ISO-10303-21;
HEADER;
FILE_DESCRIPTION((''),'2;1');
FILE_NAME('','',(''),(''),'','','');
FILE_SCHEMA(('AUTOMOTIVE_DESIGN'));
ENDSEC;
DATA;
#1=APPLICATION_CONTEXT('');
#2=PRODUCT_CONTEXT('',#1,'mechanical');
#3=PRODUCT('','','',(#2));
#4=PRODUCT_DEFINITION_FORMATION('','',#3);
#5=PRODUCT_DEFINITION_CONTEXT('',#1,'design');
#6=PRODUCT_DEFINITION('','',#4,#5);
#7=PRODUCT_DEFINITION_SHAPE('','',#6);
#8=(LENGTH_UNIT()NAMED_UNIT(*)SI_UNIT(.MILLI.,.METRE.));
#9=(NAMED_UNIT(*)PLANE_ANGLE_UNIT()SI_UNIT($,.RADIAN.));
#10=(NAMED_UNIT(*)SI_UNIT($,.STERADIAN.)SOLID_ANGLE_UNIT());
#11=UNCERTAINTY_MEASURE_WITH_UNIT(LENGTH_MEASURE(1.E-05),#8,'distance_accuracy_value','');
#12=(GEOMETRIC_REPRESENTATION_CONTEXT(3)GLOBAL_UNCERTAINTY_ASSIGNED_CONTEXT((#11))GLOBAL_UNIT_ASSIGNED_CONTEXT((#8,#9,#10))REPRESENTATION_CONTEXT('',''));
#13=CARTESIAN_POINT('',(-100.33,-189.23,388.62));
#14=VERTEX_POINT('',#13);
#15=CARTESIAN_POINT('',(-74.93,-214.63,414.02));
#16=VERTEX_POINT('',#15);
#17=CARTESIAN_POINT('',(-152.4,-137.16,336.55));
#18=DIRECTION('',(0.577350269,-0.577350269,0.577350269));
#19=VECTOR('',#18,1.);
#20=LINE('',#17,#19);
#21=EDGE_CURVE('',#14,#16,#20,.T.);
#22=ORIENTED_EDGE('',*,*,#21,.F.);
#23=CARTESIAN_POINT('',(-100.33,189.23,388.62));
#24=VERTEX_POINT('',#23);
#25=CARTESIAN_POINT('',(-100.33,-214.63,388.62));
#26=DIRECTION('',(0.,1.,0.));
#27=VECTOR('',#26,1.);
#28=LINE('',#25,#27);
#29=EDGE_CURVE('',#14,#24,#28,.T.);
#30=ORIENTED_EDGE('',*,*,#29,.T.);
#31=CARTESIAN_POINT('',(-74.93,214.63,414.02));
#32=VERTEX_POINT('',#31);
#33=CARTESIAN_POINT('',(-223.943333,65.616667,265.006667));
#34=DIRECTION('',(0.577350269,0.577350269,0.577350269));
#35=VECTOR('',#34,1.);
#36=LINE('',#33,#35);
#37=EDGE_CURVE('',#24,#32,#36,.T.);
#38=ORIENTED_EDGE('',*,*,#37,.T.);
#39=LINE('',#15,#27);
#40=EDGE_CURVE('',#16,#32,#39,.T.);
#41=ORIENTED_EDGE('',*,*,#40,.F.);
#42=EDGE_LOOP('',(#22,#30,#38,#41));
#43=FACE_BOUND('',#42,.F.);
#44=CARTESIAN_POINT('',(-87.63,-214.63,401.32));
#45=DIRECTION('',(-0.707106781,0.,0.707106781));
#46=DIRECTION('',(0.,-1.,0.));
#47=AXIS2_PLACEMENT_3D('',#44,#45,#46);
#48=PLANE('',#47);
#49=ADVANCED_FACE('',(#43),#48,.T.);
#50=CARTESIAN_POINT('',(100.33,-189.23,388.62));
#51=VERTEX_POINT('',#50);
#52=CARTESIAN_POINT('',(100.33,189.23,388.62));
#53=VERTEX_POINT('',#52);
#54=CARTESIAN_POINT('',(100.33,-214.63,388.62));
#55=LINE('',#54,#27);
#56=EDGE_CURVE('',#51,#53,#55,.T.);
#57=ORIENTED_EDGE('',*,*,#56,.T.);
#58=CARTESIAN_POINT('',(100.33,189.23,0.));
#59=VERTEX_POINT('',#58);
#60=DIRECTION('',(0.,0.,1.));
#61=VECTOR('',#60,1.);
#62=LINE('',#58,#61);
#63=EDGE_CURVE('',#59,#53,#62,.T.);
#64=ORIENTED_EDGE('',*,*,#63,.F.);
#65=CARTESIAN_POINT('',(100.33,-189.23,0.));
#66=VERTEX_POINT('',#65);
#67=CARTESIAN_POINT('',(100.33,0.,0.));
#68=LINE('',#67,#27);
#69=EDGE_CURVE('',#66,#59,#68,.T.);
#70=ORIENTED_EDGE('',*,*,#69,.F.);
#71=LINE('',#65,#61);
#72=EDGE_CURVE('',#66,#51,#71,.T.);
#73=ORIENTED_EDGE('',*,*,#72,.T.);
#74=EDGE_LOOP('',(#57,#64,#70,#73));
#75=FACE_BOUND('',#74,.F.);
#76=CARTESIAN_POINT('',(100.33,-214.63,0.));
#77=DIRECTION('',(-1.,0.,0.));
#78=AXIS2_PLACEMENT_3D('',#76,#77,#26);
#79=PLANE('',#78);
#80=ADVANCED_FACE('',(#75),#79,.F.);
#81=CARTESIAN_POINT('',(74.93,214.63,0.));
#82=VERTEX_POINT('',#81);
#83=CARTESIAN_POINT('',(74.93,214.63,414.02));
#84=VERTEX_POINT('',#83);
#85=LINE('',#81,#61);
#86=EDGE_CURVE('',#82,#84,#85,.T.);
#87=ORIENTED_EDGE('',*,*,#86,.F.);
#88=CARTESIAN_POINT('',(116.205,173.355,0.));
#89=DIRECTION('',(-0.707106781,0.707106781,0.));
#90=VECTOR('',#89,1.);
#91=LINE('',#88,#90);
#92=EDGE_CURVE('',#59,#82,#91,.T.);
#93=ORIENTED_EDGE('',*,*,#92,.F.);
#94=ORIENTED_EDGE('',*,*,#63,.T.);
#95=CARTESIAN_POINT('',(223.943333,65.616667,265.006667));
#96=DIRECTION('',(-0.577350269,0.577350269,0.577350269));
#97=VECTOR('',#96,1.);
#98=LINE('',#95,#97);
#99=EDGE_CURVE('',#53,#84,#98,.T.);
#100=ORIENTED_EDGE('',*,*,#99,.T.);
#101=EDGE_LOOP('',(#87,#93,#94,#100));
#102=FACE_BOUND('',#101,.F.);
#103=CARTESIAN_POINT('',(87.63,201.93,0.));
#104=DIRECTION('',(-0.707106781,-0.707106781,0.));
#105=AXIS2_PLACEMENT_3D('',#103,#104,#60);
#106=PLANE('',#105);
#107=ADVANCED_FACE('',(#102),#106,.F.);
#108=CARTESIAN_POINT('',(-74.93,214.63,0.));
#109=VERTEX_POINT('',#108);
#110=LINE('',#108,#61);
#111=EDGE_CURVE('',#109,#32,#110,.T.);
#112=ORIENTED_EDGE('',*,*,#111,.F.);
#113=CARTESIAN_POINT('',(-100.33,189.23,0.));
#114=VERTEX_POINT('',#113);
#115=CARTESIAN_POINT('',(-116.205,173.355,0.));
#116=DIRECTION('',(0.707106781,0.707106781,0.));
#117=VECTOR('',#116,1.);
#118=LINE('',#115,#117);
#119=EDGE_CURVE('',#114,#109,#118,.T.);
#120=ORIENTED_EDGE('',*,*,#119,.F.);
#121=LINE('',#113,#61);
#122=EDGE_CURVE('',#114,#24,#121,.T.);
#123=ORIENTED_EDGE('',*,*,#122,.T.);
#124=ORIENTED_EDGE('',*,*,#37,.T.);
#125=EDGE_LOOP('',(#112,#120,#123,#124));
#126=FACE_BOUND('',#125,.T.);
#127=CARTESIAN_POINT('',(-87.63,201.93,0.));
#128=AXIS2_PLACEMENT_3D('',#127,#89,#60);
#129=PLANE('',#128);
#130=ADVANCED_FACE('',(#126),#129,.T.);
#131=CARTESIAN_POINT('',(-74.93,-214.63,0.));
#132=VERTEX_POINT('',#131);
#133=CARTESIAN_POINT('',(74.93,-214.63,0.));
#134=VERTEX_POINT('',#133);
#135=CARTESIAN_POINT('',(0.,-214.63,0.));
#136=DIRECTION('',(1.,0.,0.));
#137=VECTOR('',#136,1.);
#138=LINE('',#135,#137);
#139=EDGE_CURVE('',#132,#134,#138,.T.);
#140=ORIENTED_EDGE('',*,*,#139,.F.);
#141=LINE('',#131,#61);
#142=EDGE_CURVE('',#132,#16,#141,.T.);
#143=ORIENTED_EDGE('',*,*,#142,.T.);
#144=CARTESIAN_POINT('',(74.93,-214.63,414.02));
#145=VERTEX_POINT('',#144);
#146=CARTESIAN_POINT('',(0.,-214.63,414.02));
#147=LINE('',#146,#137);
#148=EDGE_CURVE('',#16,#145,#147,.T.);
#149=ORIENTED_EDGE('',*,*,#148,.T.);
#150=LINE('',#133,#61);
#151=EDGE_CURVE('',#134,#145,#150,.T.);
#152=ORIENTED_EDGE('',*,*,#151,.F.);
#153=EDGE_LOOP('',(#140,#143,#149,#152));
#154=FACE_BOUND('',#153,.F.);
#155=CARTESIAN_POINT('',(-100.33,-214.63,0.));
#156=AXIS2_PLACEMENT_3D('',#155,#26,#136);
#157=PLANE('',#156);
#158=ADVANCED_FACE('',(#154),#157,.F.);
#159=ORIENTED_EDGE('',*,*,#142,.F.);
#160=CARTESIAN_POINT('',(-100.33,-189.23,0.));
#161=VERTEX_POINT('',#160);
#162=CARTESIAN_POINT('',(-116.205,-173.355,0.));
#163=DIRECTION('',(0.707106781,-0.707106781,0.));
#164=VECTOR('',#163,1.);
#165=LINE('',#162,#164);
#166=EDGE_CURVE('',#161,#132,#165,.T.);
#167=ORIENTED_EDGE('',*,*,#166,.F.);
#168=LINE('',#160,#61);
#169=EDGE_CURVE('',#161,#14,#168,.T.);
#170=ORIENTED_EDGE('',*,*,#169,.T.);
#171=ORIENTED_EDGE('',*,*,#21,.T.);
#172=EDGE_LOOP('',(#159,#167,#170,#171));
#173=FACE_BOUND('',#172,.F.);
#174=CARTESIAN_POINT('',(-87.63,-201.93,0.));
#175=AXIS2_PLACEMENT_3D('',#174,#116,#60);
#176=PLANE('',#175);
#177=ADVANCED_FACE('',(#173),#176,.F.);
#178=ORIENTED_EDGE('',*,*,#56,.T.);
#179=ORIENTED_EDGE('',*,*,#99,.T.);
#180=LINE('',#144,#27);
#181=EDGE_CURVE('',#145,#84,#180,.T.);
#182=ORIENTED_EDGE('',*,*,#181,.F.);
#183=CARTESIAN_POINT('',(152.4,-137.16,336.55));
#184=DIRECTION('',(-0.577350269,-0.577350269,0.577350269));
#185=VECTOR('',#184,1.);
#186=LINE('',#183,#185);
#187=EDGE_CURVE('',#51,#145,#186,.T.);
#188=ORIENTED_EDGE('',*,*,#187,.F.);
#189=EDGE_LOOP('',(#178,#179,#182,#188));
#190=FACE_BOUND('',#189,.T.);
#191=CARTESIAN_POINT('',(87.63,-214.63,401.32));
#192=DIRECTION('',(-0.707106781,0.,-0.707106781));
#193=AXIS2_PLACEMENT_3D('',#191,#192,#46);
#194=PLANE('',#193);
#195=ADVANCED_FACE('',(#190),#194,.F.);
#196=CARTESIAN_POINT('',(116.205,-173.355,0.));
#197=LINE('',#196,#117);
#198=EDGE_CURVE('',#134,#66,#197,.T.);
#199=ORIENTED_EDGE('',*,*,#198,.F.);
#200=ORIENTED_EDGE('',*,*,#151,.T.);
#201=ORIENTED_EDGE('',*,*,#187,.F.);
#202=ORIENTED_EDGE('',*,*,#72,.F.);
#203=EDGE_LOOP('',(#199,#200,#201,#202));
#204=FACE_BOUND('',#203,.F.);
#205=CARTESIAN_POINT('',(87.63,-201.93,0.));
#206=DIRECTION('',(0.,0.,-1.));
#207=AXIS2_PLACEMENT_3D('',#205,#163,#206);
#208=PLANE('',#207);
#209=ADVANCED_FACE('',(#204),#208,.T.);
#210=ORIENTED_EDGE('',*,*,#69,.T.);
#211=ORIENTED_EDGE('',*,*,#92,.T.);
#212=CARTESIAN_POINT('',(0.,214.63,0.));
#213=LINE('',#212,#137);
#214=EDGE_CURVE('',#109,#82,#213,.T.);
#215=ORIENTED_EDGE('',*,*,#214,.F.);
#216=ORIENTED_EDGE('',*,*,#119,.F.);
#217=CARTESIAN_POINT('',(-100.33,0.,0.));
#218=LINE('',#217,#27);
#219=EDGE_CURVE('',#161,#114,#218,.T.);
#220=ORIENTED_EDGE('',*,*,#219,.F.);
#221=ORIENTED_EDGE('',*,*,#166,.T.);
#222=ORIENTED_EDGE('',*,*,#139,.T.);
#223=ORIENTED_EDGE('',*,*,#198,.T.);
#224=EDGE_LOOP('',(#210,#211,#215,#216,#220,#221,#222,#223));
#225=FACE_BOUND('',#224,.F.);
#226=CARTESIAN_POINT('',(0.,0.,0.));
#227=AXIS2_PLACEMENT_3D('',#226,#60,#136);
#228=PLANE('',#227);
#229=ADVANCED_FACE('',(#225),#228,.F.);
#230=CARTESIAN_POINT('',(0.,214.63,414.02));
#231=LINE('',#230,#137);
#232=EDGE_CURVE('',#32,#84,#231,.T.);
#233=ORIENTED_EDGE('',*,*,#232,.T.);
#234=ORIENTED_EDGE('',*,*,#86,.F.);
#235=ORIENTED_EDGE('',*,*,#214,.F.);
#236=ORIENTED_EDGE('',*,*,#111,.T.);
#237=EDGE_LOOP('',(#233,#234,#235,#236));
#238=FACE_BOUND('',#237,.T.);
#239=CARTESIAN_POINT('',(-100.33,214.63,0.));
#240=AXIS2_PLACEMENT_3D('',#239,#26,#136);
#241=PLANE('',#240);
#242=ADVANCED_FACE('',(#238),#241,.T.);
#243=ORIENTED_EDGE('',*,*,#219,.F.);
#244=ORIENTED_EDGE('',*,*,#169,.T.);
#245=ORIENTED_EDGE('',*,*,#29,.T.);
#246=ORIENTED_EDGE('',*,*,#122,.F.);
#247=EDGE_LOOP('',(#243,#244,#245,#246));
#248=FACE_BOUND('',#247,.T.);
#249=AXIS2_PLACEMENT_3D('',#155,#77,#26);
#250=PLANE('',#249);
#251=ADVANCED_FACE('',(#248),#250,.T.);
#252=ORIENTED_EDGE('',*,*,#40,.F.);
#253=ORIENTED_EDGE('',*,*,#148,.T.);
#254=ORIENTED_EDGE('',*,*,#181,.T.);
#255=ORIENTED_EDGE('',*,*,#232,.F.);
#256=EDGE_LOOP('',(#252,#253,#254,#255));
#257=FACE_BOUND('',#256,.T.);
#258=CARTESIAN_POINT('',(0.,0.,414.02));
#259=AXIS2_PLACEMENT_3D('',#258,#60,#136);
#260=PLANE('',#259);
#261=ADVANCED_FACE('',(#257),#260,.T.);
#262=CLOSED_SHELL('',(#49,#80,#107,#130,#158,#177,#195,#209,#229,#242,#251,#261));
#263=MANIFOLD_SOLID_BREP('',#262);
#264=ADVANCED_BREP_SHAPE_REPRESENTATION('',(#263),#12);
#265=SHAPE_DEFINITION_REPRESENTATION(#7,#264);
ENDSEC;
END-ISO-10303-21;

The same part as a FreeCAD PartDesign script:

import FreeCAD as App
import Part
import Sketcher
from FreeCAD import Vector
Q = App.Units.Quantity


def edges_at(feature, points):
    """Names of the edges that pass closest to the given points."""
    edges = feature.Shape.Edges
    near = lambda p: min(range(len(edges)), key=lambda i: edges[i].distToShape(Part.Vertex(*p))[0])
    return sorted({f"Edge{near(p) + 1}" for p in points})


def add_polygon(sketch, points):
    """Adds a closed chain of lines whose ends are joined by coincident constraints."""
    first, n = sketch.GeometryCount, len(points)
    for a, b in zip(points, points[1:] + points[:1]):
        sketch.addGeometry(Part.LineSegment(App.Vector(*a, 0), App.Vector(*b, 0)), False)
    for i in range(n):
        sketch.addConstraint(Sketcher.Constraint("Coincident", first + i, 2, first + (i + 1) % n, 1))

doc = App.newDocument("Part")
body = doc.addObject("PartDesign::Body", "Body")

sketch1 = body.newObject("Sketcher::SketchObject", "Sketch")
sketch1.AttachmentSupport = (doc.getObject("XY_Plane"), [""])
sketch1.MapMode = "FlatFace"
add_polygon(sketch1, [(-100, 215), (-100, -215), (100, -215), (100, 215)])
sketch1.addConstraint(Sketcher.Constraint("Vertical", 0))
sketch1.addConstraint(Sketcher.Constraint("Horizontal", 1))
sketch1.addConstraint(Sketcher.Constraint("Vertical", 2))
sketch1.addConstraint(Sketcher.Constraint("Horizontal", 3))
sketch1.addConstraint(Sketcher.Constraint("Symmetric", 0, 2, 2, 2, -1, 1))
sketch1.addConstraint(Sketcher.Constraint("DistanceX", 1, 1, 1, 2, Q("7.9 in")))
sketch1.addConstraint(Sketcher.Constraint("DistanceY", 0, 2, 0, 1, Q("16.9 in")))
pad1 = body.newObject("PartDesign::Pad", "Pad")
pad1.Profile = sketch1
pad1.Length = Q("16.3 in")
doc.recompute()

chamfer = body.newObject("PartDesign::Chamfer", "Chamfer")
chamfer.Base = (pad1, edges_at(pad1, [
    (100.33, 0, 414.02),
    (-100.33, 0, 414.02),
    (100.33, -214.63, 207.01),
    (100.33, 214.63, 207.01),
    (-100.33, -214.63, 207.01),
    (-100.33, 214.63, 207.01),
]))
chamfer.Size = Q("1 in")

doc.recompute()
